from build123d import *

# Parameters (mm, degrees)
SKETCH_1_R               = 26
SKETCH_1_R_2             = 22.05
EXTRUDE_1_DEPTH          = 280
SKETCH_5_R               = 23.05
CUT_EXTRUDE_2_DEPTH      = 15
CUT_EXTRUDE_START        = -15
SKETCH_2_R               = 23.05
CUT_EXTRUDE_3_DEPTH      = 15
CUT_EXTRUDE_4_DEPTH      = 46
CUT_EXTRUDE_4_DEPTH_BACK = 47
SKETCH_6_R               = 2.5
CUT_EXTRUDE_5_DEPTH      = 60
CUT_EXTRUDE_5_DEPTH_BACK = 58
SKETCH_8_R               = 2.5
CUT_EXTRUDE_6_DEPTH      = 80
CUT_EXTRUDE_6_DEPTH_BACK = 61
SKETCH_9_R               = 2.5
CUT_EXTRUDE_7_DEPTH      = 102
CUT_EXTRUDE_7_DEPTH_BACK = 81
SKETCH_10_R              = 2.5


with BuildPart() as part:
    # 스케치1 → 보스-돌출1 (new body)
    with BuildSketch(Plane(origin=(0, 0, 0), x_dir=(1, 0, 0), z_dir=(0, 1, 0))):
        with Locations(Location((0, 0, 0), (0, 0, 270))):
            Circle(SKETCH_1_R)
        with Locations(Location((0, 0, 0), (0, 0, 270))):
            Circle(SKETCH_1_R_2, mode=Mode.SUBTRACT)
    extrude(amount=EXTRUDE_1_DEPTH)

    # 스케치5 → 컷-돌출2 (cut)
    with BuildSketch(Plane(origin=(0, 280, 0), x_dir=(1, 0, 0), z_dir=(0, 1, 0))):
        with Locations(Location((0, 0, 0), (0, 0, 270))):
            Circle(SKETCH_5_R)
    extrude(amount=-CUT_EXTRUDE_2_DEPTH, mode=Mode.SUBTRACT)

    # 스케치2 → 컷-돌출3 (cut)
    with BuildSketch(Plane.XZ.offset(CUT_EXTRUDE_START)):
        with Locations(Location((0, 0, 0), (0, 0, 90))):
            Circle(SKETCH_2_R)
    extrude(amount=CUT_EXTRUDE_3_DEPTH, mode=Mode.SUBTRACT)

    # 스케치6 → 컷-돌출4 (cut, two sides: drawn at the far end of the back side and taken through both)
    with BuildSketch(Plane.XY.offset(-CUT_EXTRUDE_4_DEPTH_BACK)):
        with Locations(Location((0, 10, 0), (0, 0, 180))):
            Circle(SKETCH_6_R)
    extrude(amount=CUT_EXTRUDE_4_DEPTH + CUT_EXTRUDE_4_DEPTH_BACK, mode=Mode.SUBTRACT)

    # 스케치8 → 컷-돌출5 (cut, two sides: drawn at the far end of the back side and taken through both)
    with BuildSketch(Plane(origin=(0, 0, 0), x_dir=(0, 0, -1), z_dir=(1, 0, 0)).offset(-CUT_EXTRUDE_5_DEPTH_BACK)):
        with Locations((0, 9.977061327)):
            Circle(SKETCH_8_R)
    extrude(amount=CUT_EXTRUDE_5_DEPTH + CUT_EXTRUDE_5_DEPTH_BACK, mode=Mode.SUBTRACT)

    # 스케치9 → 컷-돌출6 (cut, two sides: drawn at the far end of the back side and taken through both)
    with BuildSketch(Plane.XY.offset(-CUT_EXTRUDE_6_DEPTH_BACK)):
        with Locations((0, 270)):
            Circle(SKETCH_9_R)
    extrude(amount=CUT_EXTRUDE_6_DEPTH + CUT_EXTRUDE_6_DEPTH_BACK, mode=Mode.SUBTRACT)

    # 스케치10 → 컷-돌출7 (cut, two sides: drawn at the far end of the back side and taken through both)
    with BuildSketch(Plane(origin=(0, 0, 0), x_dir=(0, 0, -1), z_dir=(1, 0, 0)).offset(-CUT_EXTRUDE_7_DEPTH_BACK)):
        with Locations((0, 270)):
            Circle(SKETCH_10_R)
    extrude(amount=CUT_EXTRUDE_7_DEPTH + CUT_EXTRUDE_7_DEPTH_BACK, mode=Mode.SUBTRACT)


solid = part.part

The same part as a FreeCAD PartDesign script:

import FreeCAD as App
import Part
import Sketcher
from FreeCAD import Vector

doc = App.newDocument("Part")
body = doc.addObject("PartDesign::Body", "Body")

sketch1 = body.newObject("Sketcher::SketchObject", "Sketch")
sketch1.AttachmentSupport = (doc.getObject("XZ_Plane"), [""])
sketch1.MapMode = "FlatFace"
sketch1.addGeometry([
    Part.Circle(Vector(0, 0, 0), Vector(0, 0, 1), 26),
    Part.Circle(Vector(0, 0, 0), Vector(0, 0, 1), 22),
], False)
sketch1.addConstraint([
    Sketcher.Constraint("Coincident", 0, 3, -1, 1),
    Sketcher.Constraint("Coincident", 1, 3, -1, 1),
    Sketcher.Constraint("Diameter", 0, 52.0),
    Sketcher.Constraint("Diameter", 1, 44.1),
])
pad1 = body.newObject("PartDesign::Pad", "Pad")
pad1.Profile = sketch1
pad1.Length = 280
pad1.Reversed = True

sketch2 = body.newObject("Sketcher::SketchObject", "Sketch001")
sketch2.AttachmentSupport = (doc.getObject("XZ_Plane"), [""])
sketch2.MapMode = "FlatFace"
sketch2.AttachmentOffset = App.Placement(Vector(0, 0, -280), App.Rotation())
sketch2.addGeometry(Part.Circle(Vector(0, 0, 0), Vector(0, 0, 1), 23), False)
sketch2.addConstraint([
    Sketcher.Constraint("Coincident", 0, 3, -1, 1),
    Sketcher.Constraint("Diameter", 0, 46.1),
])
pocket1 = body.newObject("PartDesign::Pocket", "Pocket")
pocket1.Profile = sketch2
pocket1.Length = 15
pocket1.Reversed = True

sketch3 = body.newObject("Sketcher::SketchObject", "Sketch002")
sketch3.AttachmentSupport = (doc.getObject("XZ_Plane"), [""])
sketch3.MapMode = "FlatFace"
sketch3.AttachmentOffset = App.Placement(Vector(0, 0, -15), App.Rotation())
sketch3.addGeometry(Part.Circle(Vector(0, 0, 0), Vector(0, 0, 1), 23), False)
sketch3.addConstraint([
    Sketcher.Constraint("Coincident", 0, 3, -1, 1),
    Sketcher.Constraint("Diameter", 0, 46.1),
])
pocket2 = body.newObject("PartDesign::Pocket", "Pocket001")
pocket2.Profile = sketch3
pocket2.Length = 15
pocket2.Reversed = True

sketch4 = body.newObject("Sketcher::SketchObject", "Sketch003")
sketch4.AttachmentSupport = (doc.getObject("XY_Plane"), [""])
sketch4.MapMode = "FlatFace"
sketch4.addGeometry(Part.Circle(Vector(0, 10, 0), Vector(0, 0, 1), 2.5), False)
sketch4.addConstraint([
    Sketcher.Constraint("PointOnObject", 0, 3, -2),
    Sketcher.Constraint("Diameter", 0, 5.0),
    Sketcher.Constraint("DistanceY", -1, 1, 0, 3, 10.0),
])
pocket3 = body.newObject("PartDesign::Pocket", "Pocket002")
pocket3.Profile = sketch4
pocket3.Type = "ThroughAll"
pocket3.Midplane = True

sketch5 = body.newObject("Sketcher::SketchObject", "Sketch004")
sketch5.AttachmentSupport = (doc.getObject("YZ_Plane"), [""])
sketch5.MapMode = "FlatFace"
sketch5.addGeometry(Part.Circle(Vector(10, 0, 0), Vector(0, 0, 1), 2.5), False)
sketch5.addConstraint([
    Sketcher.Constraint("PointOnObject", 0, 3, -1),
    Sketcher.Constraint("Diameter", 0, 5.0),
    Sketcher.Constraint("DistanceX", -1, 1, 0, 3, 9.977061),
])
pocket4 = body.newObject("PartDesign::Pocket", "Pocket003")
pocket4.Profile = sketch5
pocket4.Type = "ThroughAll"
pocket4.Midplane = True

sketch6 = body.newObject("Sketcher::SketchObject", "Sketch005")
sketch6.AttachmentSupport = (doc.getObject("XY_Plane"), [""])
sketch6.MapMode = "FlatFace"
sketch6.addGeometry(Part.Circle(Vector(0, 270, 0), Vector(0, 0, 1), 2.5), False)
sketch6.addConstraint([
    Sketcher.Constraint("PointOnObject", 0, 3, -2),
    Sketcher.Constraint("Diameter", 0, 5.0),
    Sketcher.Constraint("DistanceY", -1, 1, 0, 3, 270.0),
])
pocket5 = body.newObject("PartDesign::Pocket", "Pocket004")
pocket5.Profile = sketch6
pocket5.Type = "ThroughAll"
pocket5.Midplane = True

sketch7 = body.newObject("Sketcher::SketchObject", "Sketch006")
sketch7.AttachmentSupport = (doc.getObject("YZ_Plane"), [""])
sketch7.MapMode = "FlatFace"
sketch7.addGeometry(Part.Circle(Vector(270, 0, 0), Vector(0, 0, 1), 2.5), False)
sketch7.addConstraint([
    Sketcher.Constraint("PointOnObject", 0, 3, -1),
    Sketcher.Constraint("Diameter", 0, 5.0),
    Sketcher.Constraint("DistanceX", -1, 1, 0, 3, 270.0),
])
pocket6 = body.newObject("PartDesign::Pocket", "Pocket005")
pocket6.Profile = sketch7
pocket6.Type = "ThroughAll"
pocket6.Midplane = True

doc.recompute()
